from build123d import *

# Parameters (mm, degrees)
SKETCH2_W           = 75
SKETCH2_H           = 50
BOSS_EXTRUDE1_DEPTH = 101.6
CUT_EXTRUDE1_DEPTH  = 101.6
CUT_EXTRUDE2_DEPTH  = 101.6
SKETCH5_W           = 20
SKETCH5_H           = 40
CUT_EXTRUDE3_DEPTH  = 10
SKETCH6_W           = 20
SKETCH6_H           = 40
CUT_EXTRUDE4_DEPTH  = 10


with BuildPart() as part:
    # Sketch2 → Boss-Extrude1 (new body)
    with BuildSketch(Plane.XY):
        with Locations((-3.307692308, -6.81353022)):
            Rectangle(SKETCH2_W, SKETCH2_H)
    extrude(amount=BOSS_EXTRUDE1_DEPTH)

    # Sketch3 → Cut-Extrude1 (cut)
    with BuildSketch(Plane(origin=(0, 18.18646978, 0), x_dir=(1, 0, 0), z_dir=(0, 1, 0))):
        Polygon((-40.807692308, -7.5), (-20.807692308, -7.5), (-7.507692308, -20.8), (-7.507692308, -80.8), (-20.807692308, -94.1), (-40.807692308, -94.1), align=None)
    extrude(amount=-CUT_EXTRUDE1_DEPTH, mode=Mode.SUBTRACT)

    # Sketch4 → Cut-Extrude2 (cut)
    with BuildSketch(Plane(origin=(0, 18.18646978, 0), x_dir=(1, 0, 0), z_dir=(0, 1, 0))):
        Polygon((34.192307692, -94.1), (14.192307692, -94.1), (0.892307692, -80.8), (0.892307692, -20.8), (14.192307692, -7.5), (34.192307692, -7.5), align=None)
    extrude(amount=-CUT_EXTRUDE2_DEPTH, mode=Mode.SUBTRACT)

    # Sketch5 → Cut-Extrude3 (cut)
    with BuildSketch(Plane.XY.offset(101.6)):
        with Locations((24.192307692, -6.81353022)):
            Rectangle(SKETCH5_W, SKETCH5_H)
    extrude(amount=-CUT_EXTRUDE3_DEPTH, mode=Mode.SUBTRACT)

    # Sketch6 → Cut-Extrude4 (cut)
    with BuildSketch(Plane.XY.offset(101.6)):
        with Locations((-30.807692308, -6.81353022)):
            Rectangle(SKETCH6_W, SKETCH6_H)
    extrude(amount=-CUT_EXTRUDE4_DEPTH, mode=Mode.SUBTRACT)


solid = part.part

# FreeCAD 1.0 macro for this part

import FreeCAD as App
import Part
import Sketcher
from FreeCAD import Vector


def add_polygon(sketch, points):
    """Adds a closed chain of lines whose ends are joined by coincident constraints."""
    first, n = sketch.GeometryCount, len(points)
    for a, b in zip(points, points[1:] + points[:1]):
        sketch.addGeometry(Part.LineSegment(App.Vector(*a, 0), App.Vector(*b, 0)), False)
    for i in range(n):
        sketch.addConstraint(Sketcher.Constraint("Coincident", first + i, 2, first + (i + 1) % n, 1))

doc = App.newDocument("Part")
body = doc.addObject("PartDesign::Body", "Body")

sketch1 = body.newObject("Sketcher::SketchObject", "Sketch")
sketch1.AttachmentSupport = (doc.getObject("XY_Plane"), [""])
sketch1.MapMode = "FlatFace"
add_polygon(sketch1, [(-41, 18), (-41, -32), (34, -32), (34, 18)])
sketch1.addConstraint(Sketcher.Constraint("Vertical", 0))
sketch1.addConstraint(Sketcher.Constraint("Horizontal", 1))
sketch1.addConstraint(Sketcher.Constraint("Vertical", 2))
sketch1.addConstraint(Sketcher.Constraint("Horizontal", 3))
sketch1.addConstraint(Sketcher.Constraint("DistanceX", 1, 1, 1, 2, 75.0))
sketch1.addConstraint(Sketcher.Constraint("DistanceY", 0, 2, 0, 1, 50.0))
sketch1.addConstraint(Sketcher.Constraint("DistanceY", 0, 2, -1, 1, 31.81353))
sketch1.addConstraint(Sketcher.Constraint("DistanceX", 0, 2, -1, 1, 40.807692))
pad1 = body.newObject("PartDesign::Pad", "Pad")
pad1.Profile = sketch1
pad1.Length = 101.6

sketch2 = body.newObject("Sketcher::SketchObject", "Sketch001")
sketch2.AttachmentSupport = (doc.getObject("XZ_Plane"), [""])
sketch2.MapMode = "FlatFace"
sketch2.AttachmentOffset = App.Placement(Vector(0, 0, -18.18647), App.Rotation())
add_polygon(sketch2, [(-21, 8), (-41, 8), (-41, 94), (-21, 94), (-8, 81), (-8, 21)])
sketch2.addConstraint(Sketcher.Constraint("Horizontal", 0))
sketch2.addConstraint(Sketcher.Constraint("Vertical", 1))
sketch2.addConstraint(Sketcher.Constraint("Horizontal", 2))
sketch2.addConstraint(Sketcher.Constraint("Vertical", 4))
sketch2.addConstraint(Sketcher.Constraint("Perpendicular", 3, 5))
sketch2.addConstraint(Sketcher.Constraint("Vertical", 2, 2, 5, 2))
sketch2.addConstraint(Sketcher.Constraint("Equal", 3, 5))
sketch2.addConstraint(Sketcher.Constraint("DistanceX", 0, 2, 0, 1, 20.0))
sketch2.addConstraint(Sketcher.Constraint("DistanceY", 4, 2, 4, 1, 60.0))
sketch2.addConstraint(Sketcher.Constraint("DistanceY", 1, 1, 1, 2, 86.6))
sketch2.addConstraint(Sketcher.Constraint("DistanceY", -1, 1, 0, 2, 7.5))
sketch2.addConstraint(Sketcher.Constraint("DistanceX", 0, 2, -1, 1, 40.807692))
pocket1 = body.newObject("PartDesign::Pocket", "Pocket")
pocket1.Profile = sketch2
pocket1.Length = 101.6
pocket1.Reversed = True

sketch3 = body.newObject("Sketcher::SketchObject", "Sketch002")
sketch3.AttachmentSupport = (doc.getObject("XZ_Plane"), [""])
sketch3.MapMode = "FlatFace"
sketch3.AttachmentOffset = App.Placement(Vector(0, 0, -18.18647), App.Rotation())
add_polygon(sketch3, [(14, 94), (34, 94), (34, 8), (14, 8), (1, 21), (1, 81)])
sketch3.addConstraint(Sketcher.Constraint("Horizontal", 0))
sketch3.addConstraint(Sketcher.Constraint("Vertical", 1))
sketch3.addConstraint(Sketcher.Constraint("Horizontal", 2))
sketch3.addConstraint(Sketcher.Constraint("Vertical", 4))
sketch3.addConstraint(Sketcher.Constraint("Perpendicular", 3, 5))
sketch3.addConstraint(Sketcher.Constraint("Vertical", 2, 2, 5, 2))
sketch3.addConstraint(Sketcher.Constraint("Equal", 3, 5))
sketch3.addConstraint(Sketcher.Constraint("DistanceX", 0, 1, 0, 2, 20.0))
sketch3.addConstraint(Sketcher.Constraint("DistanceY", 4, 1, 4, 2, 60.0))
sketch3.addConstraint(Sketcher.Constraint("DistanceY", 1, 2, 1, 1, 86.6))
sketch3.addConstraint(Sketcher.Constraint("DistanceY", -1, 1, 0, 2, 94.1))
sketch3.addConstraint(Sketcher.Constraint("DistanceX", -1, 1, 0, 2, 34.192308))
pocket2 = body.newObject("PartDesign::Pocket", "Pocket001")
pocket2.Profile = sketch3
pocket2.Length = 101.6
pocket2.Reversed = True

sketch4 = body.newObject("Sketcher::SketchObject", "Sketch003")
sketch4.AttachmentSupport = (doc.getObject("XY_Plane"), [""])
sketch4.MapMode = "FlatFace"
sketch4.AttachmentOffset = App.Placement(Vector(0, 0, 101.6), App.Rotation())
add_polygon(sketch4, [(14, 13), (14, -27), (34, -27), (34, 13)])
sketch4.addConstraint(Sketcher.Constraint("Vertical", 0))
sketch4.addConstraint(Sketcher.Constraint("Horizontal", 1))
sketch4.addConstraint(Sketcher.Constraint("Vertical", 2))
sketch4.addConstraint(Sketcher.Constraint("Horizontal", 3))
sketch4.addConstraint(Sketcher.Constraint("DistanceX", 1, 1, 1, 2, 20.0))
sketch4.addConstraint(Sketcher.Constraint("DistanceY", 0, 2, 0, 1, 40.0))
sketch4.addConstraint(Sketcher.Constraint("DistanceY", 0, 2, -1, 1, 26.81353))
sketch4.addConstraint(Sketcher.Constraint("DistanceX", -1, 1, 0, 2, 14.192308))
pocket3 = body.newObject("PartDesign::Pocket", "Pocket002")
pocket3.Profile = sketch4
pocket3.Length = 10

sketch5 = body.newObject("Sketcher::SketchObject", "Sketch004")
sketch5.AttachmentSupport = (doc.getObject("XY_Plane"), [""])
sketch5.MapMode = "FlatFace"
sketch5.AttachmentOffset = App.Placement(Vector(0, 0, 101.6), App.Rotation())
add_polygon(sketch5, [(-41, 13), (-41, -27), (-21, -27), (-21, 13)])
sketch5.addConstraint(Sketcher.Constraint("Vertical", 0))
sketch5.addConstraint(Sketcher.Constraint("Horizontal", 1))
sketch5.addConstraint(Sketcher.Constraint("Vertical", 2))
sketch5.addConstraint(Sketcher.Constraint("Horizontal", 3))
sketch5.addConstraint(Sketcher.Constraint("DistanceX", 1, 1, 1, 2, 20.0))
sketch5.addConstraint(Sketcher.Constraint("DistanceY", 0, 2, 0, 1, 40.0))
sketch5.addConstraint(Sketcher.Constraint("DistanceY", 0, 2, -1, 1, 26.81353))
sketch5.addConstraint(Sketcher.Constraint("DistanceX", 0, 2, -1, 1, 40.807692))
pocket4 = body.newObject("PartDesign::Pocket", "Pocket003")
pocket4.Profile = sketch5
pocket4.Length = 10

doc.recompute()
